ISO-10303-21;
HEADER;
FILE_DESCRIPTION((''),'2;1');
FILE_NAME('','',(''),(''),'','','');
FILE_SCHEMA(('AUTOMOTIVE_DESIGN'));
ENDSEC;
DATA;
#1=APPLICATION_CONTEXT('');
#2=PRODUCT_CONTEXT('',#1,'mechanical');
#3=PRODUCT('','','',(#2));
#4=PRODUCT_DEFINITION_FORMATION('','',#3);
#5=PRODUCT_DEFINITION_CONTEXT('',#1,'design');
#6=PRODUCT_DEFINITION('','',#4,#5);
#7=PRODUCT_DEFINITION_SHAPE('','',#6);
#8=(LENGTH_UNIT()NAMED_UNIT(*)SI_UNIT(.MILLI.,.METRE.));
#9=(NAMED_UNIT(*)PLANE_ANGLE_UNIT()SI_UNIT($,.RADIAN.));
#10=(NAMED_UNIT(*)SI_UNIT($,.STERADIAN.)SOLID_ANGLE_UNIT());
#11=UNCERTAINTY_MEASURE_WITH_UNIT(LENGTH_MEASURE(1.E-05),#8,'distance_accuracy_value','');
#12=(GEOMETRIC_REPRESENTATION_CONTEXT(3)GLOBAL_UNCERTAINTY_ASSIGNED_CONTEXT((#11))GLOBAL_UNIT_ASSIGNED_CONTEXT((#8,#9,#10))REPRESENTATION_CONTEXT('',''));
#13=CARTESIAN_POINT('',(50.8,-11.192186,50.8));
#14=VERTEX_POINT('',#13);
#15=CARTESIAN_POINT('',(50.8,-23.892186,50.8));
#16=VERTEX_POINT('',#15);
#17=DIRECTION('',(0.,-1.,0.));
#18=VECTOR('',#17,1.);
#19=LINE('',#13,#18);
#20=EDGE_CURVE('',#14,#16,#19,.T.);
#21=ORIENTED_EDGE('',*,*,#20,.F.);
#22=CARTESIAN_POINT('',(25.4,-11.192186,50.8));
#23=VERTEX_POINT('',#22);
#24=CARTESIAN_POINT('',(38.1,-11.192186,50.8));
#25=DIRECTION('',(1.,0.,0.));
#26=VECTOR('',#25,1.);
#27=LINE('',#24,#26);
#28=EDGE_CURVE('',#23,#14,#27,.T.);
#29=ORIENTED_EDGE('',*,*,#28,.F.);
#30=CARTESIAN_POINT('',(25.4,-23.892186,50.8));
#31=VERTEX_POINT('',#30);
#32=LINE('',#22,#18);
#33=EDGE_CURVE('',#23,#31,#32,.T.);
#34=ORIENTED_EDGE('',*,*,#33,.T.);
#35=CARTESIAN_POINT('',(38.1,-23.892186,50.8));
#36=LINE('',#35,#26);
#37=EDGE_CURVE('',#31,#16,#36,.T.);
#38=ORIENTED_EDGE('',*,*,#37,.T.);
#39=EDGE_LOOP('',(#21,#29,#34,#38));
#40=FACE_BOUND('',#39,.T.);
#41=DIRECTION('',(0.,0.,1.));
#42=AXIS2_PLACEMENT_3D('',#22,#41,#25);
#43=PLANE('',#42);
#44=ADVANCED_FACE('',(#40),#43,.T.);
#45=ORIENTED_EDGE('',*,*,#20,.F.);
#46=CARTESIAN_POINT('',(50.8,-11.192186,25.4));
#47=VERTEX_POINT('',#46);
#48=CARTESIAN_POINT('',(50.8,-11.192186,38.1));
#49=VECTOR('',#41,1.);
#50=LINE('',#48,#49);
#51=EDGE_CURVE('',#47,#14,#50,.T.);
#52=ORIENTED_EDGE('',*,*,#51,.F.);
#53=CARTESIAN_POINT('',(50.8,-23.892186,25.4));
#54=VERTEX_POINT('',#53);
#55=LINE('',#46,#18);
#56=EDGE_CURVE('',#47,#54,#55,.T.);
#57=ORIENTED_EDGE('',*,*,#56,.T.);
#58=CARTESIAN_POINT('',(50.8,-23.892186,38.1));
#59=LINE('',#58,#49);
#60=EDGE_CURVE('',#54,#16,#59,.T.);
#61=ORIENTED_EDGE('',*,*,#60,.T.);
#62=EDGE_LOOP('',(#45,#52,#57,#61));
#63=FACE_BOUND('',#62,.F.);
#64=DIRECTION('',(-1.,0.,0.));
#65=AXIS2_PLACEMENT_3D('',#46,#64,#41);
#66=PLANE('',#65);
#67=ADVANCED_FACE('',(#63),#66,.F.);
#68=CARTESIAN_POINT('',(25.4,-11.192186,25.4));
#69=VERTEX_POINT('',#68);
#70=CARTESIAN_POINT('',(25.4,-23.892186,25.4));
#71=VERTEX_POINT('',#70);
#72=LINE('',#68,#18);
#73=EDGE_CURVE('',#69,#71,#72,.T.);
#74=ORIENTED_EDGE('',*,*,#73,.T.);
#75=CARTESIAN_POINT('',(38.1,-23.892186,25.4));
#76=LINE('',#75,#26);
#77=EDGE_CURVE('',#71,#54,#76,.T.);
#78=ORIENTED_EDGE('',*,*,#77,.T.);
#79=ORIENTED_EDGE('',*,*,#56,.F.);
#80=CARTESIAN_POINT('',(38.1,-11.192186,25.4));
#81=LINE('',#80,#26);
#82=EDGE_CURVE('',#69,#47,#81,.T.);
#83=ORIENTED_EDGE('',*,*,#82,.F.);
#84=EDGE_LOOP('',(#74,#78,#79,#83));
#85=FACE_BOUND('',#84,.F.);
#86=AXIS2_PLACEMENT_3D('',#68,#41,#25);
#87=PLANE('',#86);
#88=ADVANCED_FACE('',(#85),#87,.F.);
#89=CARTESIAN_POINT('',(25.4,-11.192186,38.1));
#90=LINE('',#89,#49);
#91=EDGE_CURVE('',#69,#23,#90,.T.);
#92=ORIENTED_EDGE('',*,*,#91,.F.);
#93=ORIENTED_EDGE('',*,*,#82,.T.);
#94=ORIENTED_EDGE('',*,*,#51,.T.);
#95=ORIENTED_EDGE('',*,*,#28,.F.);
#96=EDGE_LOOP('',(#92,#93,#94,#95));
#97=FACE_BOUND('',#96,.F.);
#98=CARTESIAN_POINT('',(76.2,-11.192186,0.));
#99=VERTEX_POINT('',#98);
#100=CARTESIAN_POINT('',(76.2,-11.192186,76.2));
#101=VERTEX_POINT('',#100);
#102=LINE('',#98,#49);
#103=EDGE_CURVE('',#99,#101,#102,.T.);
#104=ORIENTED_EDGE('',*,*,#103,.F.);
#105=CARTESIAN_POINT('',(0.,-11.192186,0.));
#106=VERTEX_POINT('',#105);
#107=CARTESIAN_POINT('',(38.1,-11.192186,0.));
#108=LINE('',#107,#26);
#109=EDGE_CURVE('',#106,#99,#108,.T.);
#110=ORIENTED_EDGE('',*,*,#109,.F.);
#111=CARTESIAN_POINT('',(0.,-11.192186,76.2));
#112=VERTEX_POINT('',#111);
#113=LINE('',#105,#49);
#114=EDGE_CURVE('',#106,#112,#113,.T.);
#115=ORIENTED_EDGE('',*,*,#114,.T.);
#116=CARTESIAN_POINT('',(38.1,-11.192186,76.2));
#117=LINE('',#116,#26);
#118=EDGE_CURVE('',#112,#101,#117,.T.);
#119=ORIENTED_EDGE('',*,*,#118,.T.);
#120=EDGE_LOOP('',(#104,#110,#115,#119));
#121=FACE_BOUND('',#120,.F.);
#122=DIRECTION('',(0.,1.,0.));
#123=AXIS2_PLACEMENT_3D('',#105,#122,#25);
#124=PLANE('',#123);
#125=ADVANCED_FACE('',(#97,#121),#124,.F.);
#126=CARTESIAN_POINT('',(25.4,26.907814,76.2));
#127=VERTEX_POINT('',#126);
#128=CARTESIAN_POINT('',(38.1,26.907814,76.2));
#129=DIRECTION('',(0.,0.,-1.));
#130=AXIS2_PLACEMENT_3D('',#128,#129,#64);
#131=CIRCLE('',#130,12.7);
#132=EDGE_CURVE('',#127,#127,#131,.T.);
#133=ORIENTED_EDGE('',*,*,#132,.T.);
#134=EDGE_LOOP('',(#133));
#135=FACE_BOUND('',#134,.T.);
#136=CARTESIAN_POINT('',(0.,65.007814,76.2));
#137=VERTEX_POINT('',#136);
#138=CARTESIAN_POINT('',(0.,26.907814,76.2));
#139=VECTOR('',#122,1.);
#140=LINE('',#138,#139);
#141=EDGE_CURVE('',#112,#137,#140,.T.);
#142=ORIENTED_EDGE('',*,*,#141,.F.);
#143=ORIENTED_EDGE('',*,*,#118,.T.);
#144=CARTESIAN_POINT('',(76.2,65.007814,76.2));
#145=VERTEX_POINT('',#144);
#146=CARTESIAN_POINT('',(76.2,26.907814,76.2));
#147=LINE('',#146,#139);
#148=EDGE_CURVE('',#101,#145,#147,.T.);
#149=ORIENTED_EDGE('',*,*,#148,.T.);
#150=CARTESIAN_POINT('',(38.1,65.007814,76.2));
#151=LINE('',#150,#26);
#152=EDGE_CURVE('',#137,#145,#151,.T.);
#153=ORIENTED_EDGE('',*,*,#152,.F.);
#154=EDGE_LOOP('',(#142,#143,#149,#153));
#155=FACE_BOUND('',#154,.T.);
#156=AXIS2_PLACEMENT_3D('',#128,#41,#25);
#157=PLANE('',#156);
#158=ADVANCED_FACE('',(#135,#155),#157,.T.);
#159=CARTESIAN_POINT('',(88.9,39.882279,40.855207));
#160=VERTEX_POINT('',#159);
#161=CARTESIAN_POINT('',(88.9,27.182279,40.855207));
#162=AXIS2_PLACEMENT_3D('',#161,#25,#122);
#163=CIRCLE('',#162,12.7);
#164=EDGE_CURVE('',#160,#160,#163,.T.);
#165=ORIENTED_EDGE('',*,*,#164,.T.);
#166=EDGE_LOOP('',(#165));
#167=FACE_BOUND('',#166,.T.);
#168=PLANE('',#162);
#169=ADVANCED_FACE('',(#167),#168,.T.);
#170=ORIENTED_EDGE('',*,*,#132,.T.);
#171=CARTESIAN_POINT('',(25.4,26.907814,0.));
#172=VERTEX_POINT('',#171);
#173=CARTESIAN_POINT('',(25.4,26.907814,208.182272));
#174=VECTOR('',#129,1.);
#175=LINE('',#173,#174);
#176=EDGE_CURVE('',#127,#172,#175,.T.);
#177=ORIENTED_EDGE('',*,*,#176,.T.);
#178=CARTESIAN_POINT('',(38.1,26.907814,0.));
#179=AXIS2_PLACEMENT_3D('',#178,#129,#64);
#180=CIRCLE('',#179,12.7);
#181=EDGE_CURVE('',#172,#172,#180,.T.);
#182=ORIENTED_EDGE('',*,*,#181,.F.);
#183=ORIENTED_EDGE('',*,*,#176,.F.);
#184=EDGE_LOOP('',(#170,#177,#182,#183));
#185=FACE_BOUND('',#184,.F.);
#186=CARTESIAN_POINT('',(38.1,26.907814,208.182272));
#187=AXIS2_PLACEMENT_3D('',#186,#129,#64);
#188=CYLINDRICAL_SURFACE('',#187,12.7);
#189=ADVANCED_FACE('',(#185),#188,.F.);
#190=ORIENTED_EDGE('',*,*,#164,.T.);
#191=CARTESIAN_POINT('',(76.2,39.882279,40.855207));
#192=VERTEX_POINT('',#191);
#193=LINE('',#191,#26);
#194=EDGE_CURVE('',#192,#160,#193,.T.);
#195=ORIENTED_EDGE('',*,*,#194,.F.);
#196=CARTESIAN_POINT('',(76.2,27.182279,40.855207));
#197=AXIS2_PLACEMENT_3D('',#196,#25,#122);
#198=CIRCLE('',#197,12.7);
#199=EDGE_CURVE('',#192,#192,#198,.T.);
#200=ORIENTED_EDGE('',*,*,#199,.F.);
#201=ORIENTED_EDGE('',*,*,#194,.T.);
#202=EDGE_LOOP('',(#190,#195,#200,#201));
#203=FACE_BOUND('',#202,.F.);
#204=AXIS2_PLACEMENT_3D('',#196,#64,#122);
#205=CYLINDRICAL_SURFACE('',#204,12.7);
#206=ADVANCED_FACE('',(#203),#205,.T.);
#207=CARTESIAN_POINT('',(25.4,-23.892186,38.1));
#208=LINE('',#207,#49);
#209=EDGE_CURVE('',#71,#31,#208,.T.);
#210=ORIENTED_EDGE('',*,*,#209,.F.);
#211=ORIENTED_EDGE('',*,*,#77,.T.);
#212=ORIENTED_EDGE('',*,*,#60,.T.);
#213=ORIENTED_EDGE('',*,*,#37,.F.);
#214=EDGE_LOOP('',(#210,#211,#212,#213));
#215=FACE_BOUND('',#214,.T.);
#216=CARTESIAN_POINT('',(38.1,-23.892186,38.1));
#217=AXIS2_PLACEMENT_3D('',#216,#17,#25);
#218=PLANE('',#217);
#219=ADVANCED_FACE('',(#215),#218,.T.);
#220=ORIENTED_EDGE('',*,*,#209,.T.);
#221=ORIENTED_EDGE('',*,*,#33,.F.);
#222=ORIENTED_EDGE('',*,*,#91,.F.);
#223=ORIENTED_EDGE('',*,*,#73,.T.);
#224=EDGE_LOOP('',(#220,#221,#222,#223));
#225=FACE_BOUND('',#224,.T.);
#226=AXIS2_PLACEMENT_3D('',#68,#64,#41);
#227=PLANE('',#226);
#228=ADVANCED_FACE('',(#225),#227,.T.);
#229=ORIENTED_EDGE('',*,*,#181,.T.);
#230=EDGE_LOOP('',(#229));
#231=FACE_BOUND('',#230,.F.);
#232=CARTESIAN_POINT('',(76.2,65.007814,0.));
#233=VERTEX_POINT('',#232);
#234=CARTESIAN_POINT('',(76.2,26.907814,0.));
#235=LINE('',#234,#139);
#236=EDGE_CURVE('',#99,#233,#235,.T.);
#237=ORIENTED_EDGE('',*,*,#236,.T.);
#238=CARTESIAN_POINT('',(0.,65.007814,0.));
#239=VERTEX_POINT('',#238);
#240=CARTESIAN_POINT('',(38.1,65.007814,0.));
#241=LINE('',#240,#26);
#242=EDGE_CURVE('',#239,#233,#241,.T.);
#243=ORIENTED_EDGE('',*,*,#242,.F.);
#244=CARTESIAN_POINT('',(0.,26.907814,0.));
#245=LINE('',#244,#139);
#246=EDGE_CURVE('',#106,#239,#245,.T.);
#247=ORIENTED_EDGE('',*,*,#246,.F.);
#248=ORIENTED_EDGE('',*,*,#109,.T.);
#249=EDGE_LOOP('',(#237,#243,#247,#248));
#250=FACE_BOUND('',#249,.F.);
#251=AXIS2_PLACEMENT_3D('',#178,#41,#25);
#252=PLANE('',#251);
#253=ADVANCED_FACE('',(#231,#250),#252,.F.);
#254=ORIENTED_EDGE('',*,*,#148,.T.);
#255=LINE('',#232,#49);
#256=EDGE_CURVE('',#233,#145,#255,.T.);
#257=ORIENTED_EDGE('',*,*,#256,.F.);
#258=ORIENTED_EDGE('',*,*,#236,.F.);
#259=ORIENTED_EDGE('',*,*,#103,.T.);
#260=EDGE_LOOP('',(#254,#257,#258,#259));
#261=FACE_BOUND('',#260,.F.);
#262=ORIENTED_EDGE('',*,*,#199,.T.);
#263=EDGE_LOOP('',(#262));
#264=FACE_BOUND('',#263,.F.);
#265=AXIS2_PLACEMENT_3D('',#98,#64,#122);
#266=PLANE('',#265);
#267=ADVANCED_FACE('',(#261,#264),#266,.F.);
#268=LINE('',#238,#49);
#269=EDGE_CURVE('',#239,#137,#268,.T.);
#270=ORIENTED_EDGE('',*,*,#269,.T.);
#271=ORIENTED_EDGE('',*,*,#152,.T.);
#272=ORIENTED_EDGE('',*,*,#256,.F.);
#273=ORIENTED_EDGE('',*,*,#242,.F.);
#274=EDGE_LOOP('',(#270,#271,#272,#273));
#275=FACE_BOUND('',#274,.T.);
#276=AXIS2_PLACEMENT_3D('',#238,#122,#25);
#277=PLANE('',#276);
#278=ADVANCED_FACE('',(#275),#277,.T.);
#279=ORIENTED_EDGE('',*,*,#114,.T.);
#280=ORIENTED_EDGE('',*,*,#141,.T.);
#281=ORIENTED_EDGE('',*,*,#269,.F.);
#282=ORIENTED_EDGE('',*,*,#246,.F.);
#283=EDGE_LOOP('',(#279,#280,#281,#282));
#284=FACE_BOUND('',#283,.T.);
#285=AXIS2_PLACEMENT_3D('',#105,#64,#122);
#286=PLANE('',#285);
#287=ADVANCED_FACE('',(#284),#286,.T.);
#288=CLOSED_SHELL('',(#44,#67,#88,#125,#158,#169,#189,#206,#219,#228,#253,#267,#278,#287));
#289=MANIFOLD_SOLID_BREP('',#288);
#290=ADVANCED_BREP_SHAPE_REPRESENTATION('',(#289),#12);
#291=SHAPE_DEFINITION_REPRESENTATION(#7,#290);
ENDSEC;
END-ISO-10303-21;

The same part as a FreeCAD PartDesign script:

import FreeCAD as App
import Part
import Sketcher
Q = App.Units.Quantity


def add_polygon(sketch, points):
    """Adds a closed chain of lines whose ends are joined by coincident constraints."""
    first, n = sketch.GeometryCount, len(points)
    for a, b in zip(points, points[1:] + points[:1]):
        sketch.addGeometry(Part.LineSegment(App.Vector(*a, 0), App.Vector(*b, 0)), False)
    for i in range(n):
        sketch.addConstraint(Sketcher.Constraint("Coincident", first + i, 2, first + (i + 1) % n, 1))

doc = App.newDocument("Part")
body = doc.addObject("PartDesign::Body", "Body")

# Sketch on XY plane
sketch1 = doc.addObject("Sketcher::SketchObject", "Sketch")
body.addObject(sketch1)
sketch1.AttachmentSupport = (doc.XY_Plane, [""])
sketch1.MapMode = "FlatFace"
add_polygon(sketch1, [(0, 65), (0, -11), (76, -11), (76, 65)])  # lines 0-3
sketch1.addConstraint([
    Sketcher.Constraint("Vertical", 0),
    Sketcher.Constraint("Horizontal", 1),
    Sketcher.Constraint("Vertical", 2),
    Sketcher.Constraint("Horizontal", 3),
    Sketcher.Constraint("PointOnObject", 0, 2, -2),
    Sketcher.Constraint("Equal", 3, 0),
    Sketcher.Constraint("DistanceX", 1, 1, 1, 2, Q("3 in")),
    Sketcher.Constraint("DistanceY", 0, 2, -1, 1, Q("11.192186 mm")),
])
pad1 = doc.addObject("PartDesign::Pad", "Pad")
body.addObject(pad1)
pad1.Profile = sketch1
pad1.Length = Q("3 in")

# Sketch on XY plane
sketch2 = doc.addObject("Sketcher::SketchObject", "Sketch001")
body.addObject(sketch2)
sketch2.AttachmentSupport = (doc.XY_Plane, [""])
sketch2.MapMode = "FlatFace"
sketch2.AttachmentOffset = App.Placement(App.Vector(0, 0, 3 * 25.4), App.Rotation())
sketch2.addGeometry(Part.Circle(App.Vector(38, 27, 0), App.Vector(0, 0, 1), 13), False)
sketch2.addConstraint([
    Sketcher.Constraint("Diameter", 0, Q("1 in")),
    Sketcher.Constraint("DistanceX", -1, 1, 0, 3, Q("1.5 in")),
    Sketcher.Constraint("DistanceY", -1, 1, 0, 3, Q("26.907814 mm")),
])
doc.recompute()
hole = doc.addObject("PartDesign::Hole", "Hole")
body.addObject(hole)
hole.Profile = sketch2
hole.ThreadType = "None"
hole.Diameter = Q("1 in")
hole.DepthType = "ThroughAll"

# Sketch on XZ plane
sketch3 = doc.addObject("Sketcher::SketchObject", "Sketch002")
body.addObject(sketch3)
sketch3.AttachmentSupport = (doc.XZ_Plane, [""])
sketch3.MapMode = "FlatFace"
sketch3.AttachmentOffset = App.Placement(App.Vector(0, 0, 11.192186), App.Rotation())
add_polygon(sketch3, [(25, 51), (25, 25), (51, 25), (51, 51)])  # lines 0-3
sketch3.addConstraint([
    Sketcher.Constraint("Vertical", 0),
    Sketcher.Constraint("Horizontal", 1),
    Sketcher.Constraint("Vertical", 2),
    Sketcher.Constraint("Horizontal", 3),
    Sketcher.Constraint("Equal", 3, 0),
    Sketcher.Constraint("DistanceX", 1, 1, 1, 2, Q("1 in")),
    Sketcher.Constraint("DistanceX", -1, 1, 0, 2, Q("1 in")),
    Sketcher.Constraint("DistanceY", -1, 1, 0, 2, Q("1 in")),
])
pad2 = doc.addObject("PartDesign::Pad", "Pad001")
body.addObject(pad2)
pad2.Profile = sketch3
pad2.Length = Q("0.5 in")

# Sketch on YZ plane
sketch4 = doc.addObject("Sketcher::SketchObject", "Sketch003")
body.addObject(sketch4)
sketch4.AttachmentSupport = (doc.YZ_Plane, [""])
sketch4.MapMode = "FlatFace"
sketch4.AttachmentOffset = App.Placement(App.Vector(0, 0, 3 * 25.4), App.Rotation())
sketch4.addGeometry(Part.Circle(App.Vector(27, 41, 0), App.Vector(0, 0, 1), 13), False)
sketch4.addConstraint([
    Sketcher.Constraint("Diameter", 0, Q("1 in")),
    Sketcher.Constraint("DistanceX", -1, 1, 0, 3, Q("27.182279 mm")),
    Sketcher.Constraint("DistanceY", -1, 1, 0, 3, Q("40.855207 mm")),
])
pad3 = doc.addObject("PartDesign::Pad", "Pad002")
body.addObject(pad3)
pad3.Profile = sketch4
pad3.Length = Q("0.5 in")

doc.recompute()
